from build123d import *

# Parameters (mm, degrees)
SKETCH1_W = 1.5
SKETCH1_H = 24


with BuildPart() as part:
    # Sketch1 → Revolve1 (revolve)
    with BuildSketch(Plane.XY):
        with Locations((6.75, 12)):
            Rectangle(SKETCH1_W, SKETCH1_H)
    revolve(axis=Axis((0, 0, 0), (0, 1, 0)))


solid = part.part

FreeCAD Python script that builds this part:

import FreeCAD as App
import Part
import Sketcher
from FreeCAD import Vector


def add_polygon(sketch, points):
    """Adds a closed chain of lines whose ends are joined by coincident constraints."""
    first, n = sketch.GeometryCount, len(points)
    for a, b in zip(points, points[1:] + points[:1]):
        sketch.addGeometry(Part.LineSegment(App.Vector(*a, 0), App.Vector(*b, 0)), False)
    for i in range(n):
        sketch.addConstraint(Sketcher.Constraint("Coincident", first + i, 2, first + (i + 1) % n, 1))

doc = App.newDocument("Part")
body = doc.addObject("PartDesign::Body", "Body")

sketch1 = body.newObject("Sketcher::SketchObject", "Sketch")
sketch1.AttachmentSupport = (doc.getObject("XY_Plane"), [""])
sketch1.MapMode = "FlatFace"
add_polygon(sketch1, [(6, 24), (6, 0), (7.5, 0), (7.5, 24)])
sketch1.addConstraint([
    Sketcher.Constraint("Vertical", 0),
    Sketcher.Constraint("Horizontal", 1),
    Sketcher.Constraint("Vertical", 2),
    Sketcher.Constraint("Horizontal", 3),
    Sketcher.Constraint("PointOnObject", 0, 2, -1),
    Sketcher.Constraint("DistanceY", 0, 2, 0, 1, 24.0),
    Sketcher.Constraint("DistanceX", 1, 1, 1, 2, 1.5),
    Sketcher.Constraint("DistanceX", -1, 1, 0, 2, 6.0),
])
revolution = body.newObject("PartDesign::Revolution", "Revolution")
revolution.Profile = sketch1
revolution.ReferenceAxis = (sketch1, ["V_Axis"])
revolution.Angle = 360

doc.recompute()
